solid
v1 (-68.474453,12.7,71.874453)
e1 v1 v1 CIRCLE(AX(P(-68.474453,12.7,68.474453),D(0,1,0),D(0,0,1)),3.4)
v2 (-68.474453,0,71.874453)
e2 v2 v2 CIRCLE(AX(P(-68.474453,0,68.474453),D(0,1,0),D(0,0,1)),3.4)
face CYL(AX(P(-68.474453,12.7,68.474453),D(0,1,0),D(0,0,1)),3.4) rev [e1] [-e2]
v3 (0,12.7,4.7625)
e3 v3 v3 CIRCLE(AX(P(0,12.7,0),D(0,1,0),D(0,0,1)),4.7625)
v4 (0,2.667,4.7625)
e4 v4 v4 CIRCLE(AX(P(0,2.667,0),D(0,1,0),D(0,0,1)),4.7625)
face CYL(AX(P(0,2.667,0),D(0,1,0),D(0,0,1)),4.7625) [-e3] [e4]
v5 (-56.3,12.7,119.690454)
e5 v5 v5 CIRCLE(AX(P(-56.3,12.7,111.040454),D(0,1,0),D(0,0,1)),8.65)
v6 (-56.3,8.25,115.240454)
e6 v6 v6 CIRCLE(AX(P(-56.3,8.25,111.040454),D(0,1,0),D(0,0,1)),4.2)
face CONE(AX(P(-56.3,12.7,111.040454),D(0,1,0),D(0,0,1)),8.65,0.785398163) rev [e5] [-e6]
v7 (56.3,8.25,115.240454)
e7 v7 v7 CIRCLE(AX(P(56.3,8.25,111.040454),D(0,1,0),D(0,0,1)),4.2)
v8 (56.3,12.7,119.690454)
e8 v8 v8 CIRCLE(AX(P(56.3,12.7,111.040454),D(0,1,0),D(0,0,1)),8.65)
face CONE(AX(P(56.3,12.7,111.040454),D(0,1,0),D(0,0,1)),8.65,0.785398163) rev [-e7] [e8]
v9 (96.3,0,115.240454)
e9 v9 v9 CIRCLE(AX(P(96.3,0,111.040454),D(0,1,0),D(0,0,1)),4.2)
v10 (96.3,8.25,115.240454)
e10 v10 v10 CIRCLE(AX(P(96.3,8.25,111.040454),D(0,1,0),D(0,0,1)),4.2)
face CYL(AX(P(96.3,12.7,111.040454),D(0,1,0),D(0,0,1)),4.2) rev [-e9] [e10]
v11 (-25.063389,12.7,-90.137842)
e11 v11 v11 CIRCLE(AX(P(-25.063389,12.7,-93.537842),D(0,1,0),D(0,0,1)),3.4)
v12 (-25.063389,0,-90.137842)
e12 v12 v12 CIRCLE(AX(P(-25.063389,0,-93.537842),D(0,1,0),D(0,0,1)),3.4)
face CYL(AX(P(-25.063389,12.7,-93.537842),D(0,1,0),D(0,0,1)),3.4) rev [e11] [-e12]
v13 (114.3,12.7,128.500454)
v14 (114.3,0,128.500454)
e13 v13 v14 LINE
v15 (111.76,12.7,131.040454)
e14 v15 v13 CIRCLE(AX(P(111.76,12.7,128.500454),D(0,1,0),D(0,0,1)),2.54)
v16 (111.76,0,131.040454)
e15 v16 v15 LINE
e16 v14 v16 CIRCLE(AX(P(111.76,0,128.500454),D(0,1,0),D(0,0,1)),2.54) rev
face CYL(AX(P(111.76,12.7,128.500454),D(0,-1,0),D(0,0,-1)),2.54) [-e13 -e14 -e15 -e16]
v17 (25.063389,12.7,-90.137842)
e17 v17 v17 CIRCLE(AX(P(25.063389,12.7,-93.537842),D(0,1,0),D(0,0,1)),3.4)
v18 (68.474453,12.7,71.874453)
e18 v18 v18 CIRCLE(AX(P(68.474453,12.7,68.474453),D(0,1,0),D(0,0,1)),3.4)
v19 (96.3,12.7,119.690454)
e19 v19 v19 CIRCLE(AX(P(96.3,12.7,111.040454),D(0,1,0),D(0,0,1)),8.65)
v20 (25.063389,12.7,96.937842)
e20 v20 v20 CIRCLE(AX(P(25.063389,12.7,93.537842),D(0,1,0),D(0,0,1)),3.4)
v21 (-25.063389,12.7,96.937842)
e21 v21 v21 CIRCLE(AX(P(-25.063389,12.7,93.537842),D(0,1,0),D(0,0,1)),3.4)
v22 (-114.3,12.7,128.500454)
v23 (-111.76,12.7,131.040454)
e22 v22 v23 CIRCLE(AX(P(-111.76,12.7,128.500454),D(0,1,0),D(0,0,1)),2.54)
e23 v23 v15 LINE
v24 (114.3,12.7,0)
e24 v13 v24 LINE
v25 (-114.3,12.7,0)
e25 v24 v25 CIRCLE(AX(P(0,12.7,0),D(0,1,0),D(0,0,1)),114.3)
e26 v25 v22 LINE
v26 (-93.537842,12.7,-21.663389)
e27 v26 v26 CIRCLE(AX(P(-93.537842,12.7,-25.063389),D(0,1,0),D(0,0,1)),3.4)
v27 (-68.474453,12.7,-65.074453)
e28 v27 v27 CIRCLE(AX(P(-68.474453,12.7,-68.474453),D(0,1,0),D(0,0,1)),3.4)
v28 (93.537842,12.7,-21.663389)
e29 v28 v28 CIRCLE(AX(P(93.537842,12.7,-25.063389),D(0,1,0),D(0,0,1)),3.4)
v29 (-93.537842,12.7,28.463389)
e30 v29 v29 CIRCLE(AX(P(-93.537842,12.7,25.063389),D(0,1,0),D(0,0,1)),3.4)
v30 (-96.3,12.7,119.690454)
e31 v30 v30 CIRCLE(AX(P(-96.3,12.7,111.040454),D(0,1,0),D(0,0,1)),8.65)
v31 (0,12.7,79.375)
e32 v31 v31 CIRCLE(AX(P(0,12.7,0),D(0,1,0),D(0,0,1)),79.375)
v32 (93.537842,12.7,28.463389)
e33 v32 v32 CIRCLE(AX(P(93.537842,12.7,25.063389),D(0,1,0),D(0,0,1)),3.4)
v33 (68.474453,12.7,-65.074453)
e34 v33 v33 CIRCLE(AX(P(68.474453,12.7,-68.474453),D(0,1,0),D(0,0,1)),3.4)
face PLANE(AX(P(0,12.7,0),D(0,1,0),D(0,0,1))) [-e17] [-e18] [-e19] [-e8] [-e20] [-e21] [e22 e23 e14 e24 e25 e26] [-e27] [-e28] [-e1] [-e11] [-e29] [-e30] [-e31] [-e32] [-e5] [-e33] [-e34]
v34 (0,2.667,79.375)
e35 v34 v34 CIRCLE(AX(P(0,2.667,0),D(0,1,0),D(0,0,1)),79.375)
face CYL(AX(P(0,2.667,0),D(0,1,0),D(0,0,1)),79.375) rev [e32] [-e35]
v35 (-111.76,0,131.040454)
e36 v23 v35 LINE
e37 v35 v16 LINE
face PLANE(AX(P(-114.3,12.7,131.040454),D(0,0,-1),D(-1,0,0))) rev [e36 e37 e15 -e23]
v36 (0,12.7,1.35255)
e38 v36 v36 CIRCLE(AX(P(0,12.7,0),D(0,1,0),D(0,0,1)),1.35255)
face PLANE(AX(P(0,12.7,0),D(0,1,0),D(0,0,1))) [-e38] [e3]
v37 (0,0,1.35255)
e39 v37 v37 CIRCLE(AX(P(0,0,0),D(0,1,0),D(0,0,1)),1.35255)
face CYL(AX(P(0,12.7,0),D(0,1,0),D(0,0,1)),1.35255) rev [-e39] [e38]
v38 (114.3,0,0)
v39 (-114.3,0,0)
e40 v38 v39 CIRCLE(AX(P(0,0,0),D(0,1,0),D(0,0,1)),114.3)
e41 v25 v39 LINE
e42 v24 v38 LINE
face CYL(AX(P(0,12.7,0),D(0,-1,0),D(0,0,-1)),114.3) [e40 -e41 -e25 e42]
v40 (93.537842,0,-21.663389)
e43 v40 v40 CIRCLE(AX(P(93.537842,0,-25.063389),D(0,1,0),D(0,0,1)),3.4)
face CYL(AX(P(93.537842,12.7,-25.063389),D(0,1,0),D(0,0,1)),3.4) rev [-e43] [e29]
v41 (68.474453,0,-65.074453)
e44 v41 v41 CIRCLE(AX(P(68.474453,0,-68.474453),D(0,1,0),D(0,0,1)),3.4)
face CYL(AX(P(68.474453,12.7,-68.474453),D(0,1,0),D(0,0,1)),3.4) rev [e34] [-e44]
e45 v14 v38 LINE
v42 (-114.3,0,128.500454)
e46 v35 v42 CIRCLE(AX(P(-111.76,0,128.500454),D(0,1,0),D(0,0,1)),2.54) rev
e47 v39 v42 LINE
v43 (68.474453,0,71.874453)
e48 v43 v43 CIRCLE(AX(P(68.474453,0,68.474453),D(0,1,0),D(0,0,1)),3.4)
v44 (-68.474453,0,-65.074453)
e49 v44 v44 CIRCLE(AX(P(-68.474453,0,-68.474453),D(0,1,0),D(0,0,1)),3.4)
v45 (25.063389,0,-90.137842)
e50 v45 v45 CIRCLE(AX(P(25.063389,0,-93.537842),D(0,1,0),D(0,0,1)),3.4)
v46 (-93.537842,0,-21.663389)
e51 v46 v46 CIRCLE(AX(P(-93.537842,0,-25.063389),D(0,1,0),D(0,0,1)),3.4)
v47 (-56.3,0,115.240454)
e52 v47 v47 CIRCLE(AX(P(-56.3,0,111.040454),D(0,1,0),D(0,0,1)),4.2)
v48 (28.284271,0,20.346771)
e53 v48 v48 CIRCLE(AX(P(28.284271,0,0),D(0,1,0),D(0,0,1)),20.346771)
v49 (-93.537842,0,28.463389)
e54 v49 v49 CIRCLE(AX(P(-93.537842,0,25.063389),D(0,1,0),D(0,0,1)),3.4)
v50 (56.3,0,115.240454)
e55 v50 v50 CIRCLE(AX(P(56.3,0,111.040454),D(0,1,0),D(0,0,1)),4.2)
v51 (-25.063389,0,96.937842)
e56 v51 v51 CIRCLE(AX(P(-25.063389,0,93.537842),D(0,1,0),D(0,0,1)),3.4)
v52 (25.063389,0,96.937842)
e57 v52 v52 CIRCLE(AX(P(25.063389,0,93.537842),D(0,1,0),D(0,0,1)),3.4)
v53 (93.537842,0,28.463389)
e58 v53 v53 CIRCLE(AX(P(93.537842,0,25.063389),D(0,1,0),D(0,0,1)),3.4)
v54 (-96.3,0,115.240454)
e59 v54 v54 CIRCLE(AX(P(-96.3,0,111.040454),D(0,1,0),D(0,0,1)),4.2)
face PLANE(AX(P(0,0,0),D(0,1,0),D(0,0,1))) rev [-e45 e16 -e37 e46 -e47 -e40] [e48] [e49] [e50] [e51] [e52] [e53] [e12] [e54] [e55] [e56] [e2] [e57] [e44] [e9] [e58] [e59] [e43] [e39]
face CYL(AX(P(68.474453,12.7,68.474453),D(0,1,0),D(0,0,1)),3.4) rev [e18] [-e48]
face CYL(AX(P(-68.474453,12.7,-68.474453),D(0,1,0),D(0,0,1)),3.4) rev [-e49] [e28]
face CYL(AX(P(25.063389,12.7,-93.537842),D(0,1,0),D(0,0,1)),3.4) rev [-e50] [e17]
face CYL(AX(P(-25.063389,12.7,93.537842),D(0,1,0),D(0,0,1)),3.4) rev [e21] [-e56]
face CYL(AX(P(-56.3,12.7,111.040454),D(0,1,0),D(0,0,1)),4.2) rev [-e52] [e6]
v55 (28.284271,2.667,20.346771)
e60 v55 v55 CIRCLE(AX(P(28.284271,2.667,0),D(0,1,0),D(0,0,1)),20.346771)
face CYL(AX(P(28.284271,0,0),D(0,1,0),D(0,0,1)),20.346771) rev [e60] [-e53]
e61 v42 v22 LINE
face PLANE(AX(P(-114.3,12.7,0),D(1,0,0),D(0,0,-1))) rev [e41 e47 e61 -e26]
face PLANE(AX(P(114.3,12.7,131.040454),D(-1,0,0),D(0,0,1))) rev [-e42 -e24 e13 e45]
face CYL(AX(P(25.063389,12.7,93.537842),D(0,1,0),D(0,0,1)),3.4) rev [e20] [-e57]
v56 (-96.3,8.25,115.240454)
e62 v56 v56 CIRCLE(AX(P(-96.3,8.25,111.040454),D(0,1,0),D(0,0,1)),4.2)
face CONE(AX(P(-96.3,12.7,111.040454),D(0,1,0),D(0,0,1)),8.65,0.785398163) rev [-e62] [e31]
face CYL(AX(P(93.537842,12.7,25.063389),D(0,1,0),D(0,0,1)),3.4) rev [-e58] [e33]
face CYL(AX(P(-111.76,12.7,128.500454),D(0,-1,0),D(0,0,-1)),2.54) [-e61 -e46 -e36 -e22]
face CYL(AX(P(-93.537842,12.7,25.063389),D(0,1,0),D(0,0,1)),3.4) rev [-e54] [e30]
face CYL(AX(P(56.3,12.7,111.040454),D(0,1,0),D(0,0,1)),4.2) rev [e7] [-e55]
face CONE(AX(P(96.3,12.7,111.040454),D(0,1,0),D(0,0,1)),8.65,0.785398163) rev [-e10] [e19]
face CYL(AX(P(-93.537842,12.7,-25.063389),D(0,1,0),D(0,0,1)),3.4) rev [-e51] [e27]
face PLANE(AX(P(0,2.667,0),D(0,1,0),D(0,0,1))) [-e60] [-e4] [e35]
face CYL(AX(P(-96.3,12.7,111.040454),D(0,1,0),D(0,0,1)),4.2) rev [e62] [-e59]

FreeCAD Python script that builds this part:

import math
import FreeCAD as App
import Part
import Sketcher
from FreeCAD import Vector
Q = App.Units.Quantity


def edges_at(feature, points):
    """Names of the edges that pass closest to the given points."""
    edges = feature.Shape.Edges
    near = lambda p: min(range(len(edges)), key=lambda i: edges[i].distToShape(Part.Vertex(*p))[0])
    return sorted({f"Edge{near(p) + 1}" for p in points})

doc = App.newDocument("Part")
body = doc.addObject("PartDesign::Body", "Body")

# Sketch on XZ plane
sketch1 = body.newObject("Sketcher::SketchObject", "Sketch")
sketch1.AttachmentSupport = (doc.getObject("XZ_Plane"), [""])
sketch1.MapMode = "FlatFace"
sketch1.addGeometry([
    Part.LineSegment(Vector(-114.3, 0, 0), Vector(-114.3, 131.040454, 0)),  # 0
    Part.LineSegment(Vector(-114.3, 131.040454, 0), Vector(114.3, 131.040454, 0)),  # 1
    Part.LineSegment(Vector(114.3, 131.040454, 0), Vector(114.3, 0, 0)),  # 2
    Part.ArcOfCircle(Part.Circle(Vector(0, 0, 0), Vector(0, 0, 1), 114.3), math.radians(180), math.radians(360)),  # 3
    Part.Circle(Vector(-96.3, 111.040454, 0), Vector(0, 0, 1), 1.27),  # 4
    Part.Circle(Vector(-56.3, 111.040454, 0), Vector(0, 0, 1), 1.27),  # 5
    Part.Circle(Vector(-68.474453, 68.474453, 0), Vector(0, 0, 1), 1.27),  # 6
    Part.Circle(Vector(-25.063389, 93.537842, 0), Vector(0, 0, 1), 1.27),  # 7
    Part.Circle(Vector(-93.537842, 25.063389, 0), Vector(0, 0, 1), 1.27),  # 8
    Part.Circle(Vector(25.063389, 93.537842, 0), Vector(0, 0, 1), 1.27),  # 9
    Part.Circle(Vector(56.3, 111.040454, 0), Vector(0, 0, 1), 1.27),  # 10
    Part.Circle(Vector(96.3, 111.040454, 0), Vector(0, 0, 1), 1.27),  # 11
    Part.Circle(Vector(68.474453, 68.474453, 0), Vector(0, 0, 1), 1.27),  # 12
    Part.Circle(Vector(93.537842, 25.063389, 0), Vector(0, 0, 1), 1.27),  # 13
    Part.Circle(Vector(-93.537842, -25.063389, 0), Vector(0, 0, 1), 1.27),  # 14
    Part.Circle(Vector(-68.474453, -68.474453, 0), Vector(0, 0, 1), 1.27),  # 15
    Part.Circle(Vector(-25.063389, -93.537842, 0), Vector(0, 0, 1), 1.27),  # 16
    Part.Circle(Vector(93.537842, -25.063389, 0), Vector(0, 0, 1), 1.27),  # 17
    Part.Circle(Vector(25.063389, -93.537842, 0), Vector(0, 0, 1), 1.27),  # 18
    Part.Circle(Vector(68.474453, -68.474453, 0), Vector(0, 0, 1), 1.27),  # 19
], False)
sketch1.addConstraint([
    Sketcher.Constraint("Coincident", 0, 2, 1, 1),
    Sketcher.Constraint("Coincident", 1, 2, 2, 1),
    Sketcher.Constraint("Tangent", 2, 2, 3, 2),
    Sketcher.Constraint("Tangent", 3, 1, 0, 1),
    Sketcher.Constraint("Vertical", 0),
    Sketcher.Constraint("Horizontal", 1),
    Sketcher.Constraint("Vertical", 2),
    Sketcher.Constraint("Coincident", 3, 3, -1, 1),
    Sketcher.Constraint("Equal", 4, 5),
    Sketcher.Constraint("Equal", 5, 6),
    Sketcher.Constraint("Equal", 6, 7),
    Sketcher.Constraint("Equal", 7, 8),
    Sketcher.Constraint("Equal", 8, 9),
    Sketcher.Constraint("Equal", 9, 10),
    Sketcher.Constraint("Equal", 10, 11),
    Sketcher.Constraint("Equal", 11, 12),
    Sketcher.Constraint("Equal", 12, 13),
    Sketcher.Constraint("Equal", 13, 14),
    Sketcher.Constraint("Equal", 14, 15),
    Sketcher.Constraint("Equal", 15, 16),
    Sketcher.Constraint("Equal", 16, 17),
    Sketcher.Constraint("Equal", 17, 18),
    Sketcher.Constraint("Equal", 18, 19),
    Sketcher.Constraint("Symmetric", 13, 3, 14, 3, -1, 1),
    Sketcher.Constraint("Symmetric", 12, 3, 15, 3, -1, 1),
    Sketcher.Constraint("Symmetric", 9, 3, 16, 3, -1, 1),
    Sketcher.Constraint("Symmetric", 8, 3, 17, 3, -1, 1),
    Sketcher.Constraint("Symmetric", 7, 3, 18, 3, -1, 1),
    Sketcher.Constraint("Symmetric", 6, 3, 19, 3, -1, 1),
    Sketcher.Constraint("Symmetric", 7, 3, 9, 3, -2),
    Sketcher.Constraint("Symmetric", 5, 3, 10, 3, -2),
    Sketcher.Constraint("Symmetric", 4, 3, 11, 3, -2),
    Sketcher.Constraint("Symmetric", 6, 3, 12, 3, -2),
    Sketcher.Constraint("Symmetric", 8, 3, 13, 3, -2),
    Sketcher.Constraint("Horizontal", 4, 3, 5, 3),
    Sketcher.Constraint("Diameter", 4, Q("0.1 in")),
    Sketcher.Constraint("Radius", 3, Q("4.5 in")),
    Sketcher.Constraint("DistanceX", 4, 3, -1, 1, Q("96.3 mm")),
    Sketcher.Constraint("DistanceX", 5, 3, -1, 1, Q("56.3 mm")),
    Sketcher.Constraint("DistanceY", 6, 3, 5, 3, Q("42.566001 mm")),
    Sketcher.Constraint("DistanceY", 4, 3, 0, 2, Q("20 mm")),
    Sketcher.Constraint("DistanceY", 0, 1, 0, 2, Q("131.040454 mm")),
    Sketcher.Constraint("DistanceX", 7, 3, -1, 1, Q("25.063389 mm")),
    Sketcher.Constraint("DistanceY", -1, 1, 8, 3, Q("25.063389 mm")),
    Sketcher.Constraint("DistanceY", 7, 3, 5, 3, Q("17.502611 mm")),
    Sketcher.Constraint("DistanceX", 8, 3, 6, 3, Q("25.063389 mm")),
    Sketcher.Constraint("DistanceX", 16, 3, 13, 3, Q("118.601231 mm")),
])
pad1 = body.newObject("PartDesign::Pad", "Pad")
pad1.Profile = sketch1
pad1.Length = Q("0.5 in")
pad1.Reversed = True

# Sketch on XZ plane
sketch2 = body.newObject("Sketcher::SketchObject", "Sketch001")
sketch2.AttachmentSupport = (doc.getObject("XZ_Plane"), [""])
sketch2.MapMode = "FlatFace"
sketch2.AttachmentOffset = App.Placement(Vector(0, 0, -0.5 * 25.4), App.Rotation())
sketch2.addGeometry([
    Part.Circle(Vector(0, 0, 0), Vector(0, 0, 1), 79.375),
    Part.Circle(Vector(0, 0, 0), Vector(0, 0, 1), 4.7625),
], False)
sketch2.addConstraint([
    Sketcher.Constraint("Coincident", 0, 3, -1, 1),
    Sketcher.Constraint("Coincident", 1, 3, -1, 1),
    Sketcher.Constraint("Diameter", 0, Q("6.25 in")),
    Sketcher.Constraint("Diameter", 1, Q("0.375 in")),
])
pocket1 = body.newObject("PartDesign::Pocket", "Pocket")
pocket1.Profile = sketch2
pocket1.Length = Q("0.395 in")
pocket1.Reversed = True

# Sketch on XZ plane
sketch3 = body.newObject("Sketcher::SketchObject", "Sketch002")
sketch3.AttachmentSupport = (doc.getObject("XZ_Plane"), [""])
sketch3.MapMode = "FlatFace"
sketch3.AttachmentOffset = App.Placement(Vector(0, 0, -0.5 * 25.4), App.Rotation())
sketch3.addGeometry(Part.Circle(Vector(0, 0, 0), Vector(0, 0, 1), 0.127), False)
sketch3.addConstraint([
    Sketcher.Constraint("Coincident", 0, 3, -1, 1),
    Sketcher.Constraint("Diameter", 0, Q("0.01 in")),
])
pocket2 = body.newObject("PartDesign::Pocket", "Pocket001")
pocket2.Profile = sketch3
pocket2.Type = "ThroughAll"
pocket2.Reversed = True

# Sketch on XZ plane
sketch4 = body.newObject("Sketcher::SketchObject", "Sketch003")
sketch4.AttachmentSupport = (doc.getObject("XZ_Plane"), [""])
sketch4.MapMode = "FlatFace"
sketch4.AttachmentOffset = App.Placement(Vector(0, 0, -0.5 * 25.4), App.Rotation())
sketch4.addGeometry([
    Part.Circle(Vector(-93.537842, -25.063389, 0), Vector(0, 0, 1), 3.4),  # 0
    Part.Circle(Vector(-93.537842, 25.063389, 0), Vector(0, 0, 1), 3.4),  # 1
    Part.Circle(Vector(-25.063389, -93.537842, 0), Vector(0, 0, 1), 3.4),  # 2
    Part.Circle(Vector(-68.474453, -68.474453, 0), Vector(0, 0, 1), 3.4),  # 3
    Part.Circle(Vector(25.063389, -93.537842, 0), Vector(0, 0, 1), 3.4),  # 4
    Part.Circle(Vector(68.474453, -68.474453, 0), Vector(0, 0, 1), 3.4),  # 5
    Part.Circle(Vector(93.537842, -25.063389, 0), Vector(0, 0, 1), 3.4),  # 6
    Part.Circle(Vector(93.537842, 25.063389, 0), Vector(0, 0, 1), 3.4),  # 7
    Part.Circle(Vector(68.474453, 68.474453, 0), Vector(0, 0, 1), 3.4),  # 8
    Part.Circle(Vector(25.063389, 93.537842, 0), Vector(0, 0, 1), 3.4),  # 9
    Part.Circle(Vector(-25.063389, 93.537842, 0), Vector(0, 0, 1), 3.4),  # 10
    Part.Circle(Vector(-68.474453, 68.474453, 0), Vector(0, 0, 1), 3.4),  # 11
], False)
sketch4.addConstraint([
    Sketcher.Constraint("Equal", 0, 1),
    Sketcher.Constraint("Equal", 1, 2),
    Sketcher.Constraint("Equal", 2, 3),
    Sketcher.Constraint("Equal", 3, 4),
    Sketcher.Constraint("Equal", 4, 5),
    Sketcher.Constraint("Equal", 5, 6),
    Sketcher.Constraint("Equal", 6, 7),
    Sketcher.Constraint("Equal", 7, 8),
    Sketcher.Constraint("Equal", 8, 9),
    Sketcher.Constraint("Equal", 9, 10),
    Sketcher.Constraint("Equal", 10, 11),
    Sketcher.Constraint("Symmetric", 1, 3, 6, 3, -1, 1),
    Sketcher.Constraint("Symmetric", 0, 3, 7, 3, -1, 1),
    Sketcher.Constraint("Symmetric", 3, 3, 8, 3, -1, 1),
    Sketcher.Constraint("Symmetric", 2, 3, 9, 3, -1, 1),
    Sketcher.Constraint("Symmetric", 4, 3, 10, 3, -1, 1),
    Sketcher.Constraint("Symmetric", 5, 3, 11, 3, -1, 1),
    Sketcher.Constraint("Symmetric", 2, 3, 4, 3, -2),
    Sketcher.Constraint("Symmetric", 3, 3, 5, 3, -2),
    Sketcher.Constraint("Symmetric", 0, 3, 6, 3, -2),
    Sketcher.Constraint("Diameter", 0, Q("6.8 mm")),
    Sketcher.Constraint("DistanceY", 0, 3, -1, 1, Q("25.063389 mm")),
    Sketcher.Constraint("DistanceX", 2, 3, -1, 1, Q("25.063389 mm")),
    Sketcher.Constraint("DistanceY", 2, 3, 1, 3, Q("118.601231 mm")),
    Sketcher.Constraint("DistanceX", 0, 3, 3, 3, Q("25.063389 mm")),
    Sketcher.Constraint("DistanceY", 2, 3, 3, 3, Q("25.063389 mm")),
    Sketcher.Constraint("DistanceX", 0, 3, 4, 3, Q("118.601231 mm")),
])
doc.recompute()
hole = body.newObject("PartDesign::Hole", "Hole")
hole.Profile = sketch4
hole.ThreadType = "None"
hole.Diameter = 6.8
hole.DepthType = "ThroughAll"
hole.Reversed = True
doc.recompute()

fillet = body.newObject("PartDesign::Fillet", "Fillet")
fillet.Base = (hole, edges_at(hole, [(114.3, 6.35, 131.04), (-114.3, 6.35, 131.04)]))
fillet.Radius = Q("0.1 in")

# Sketch on XZ plane
sketch5 = body.newObject("Sketcher::SketchObject", "Sketch004")
sketch5.AttachmentSupport = (doc.getObject("XZ_Plane"), [""])
sketch5.MapMode = "FlatFace"
sketch5.AttachmentOffset = App.Placement(Vector(0, 0, -0.5 * 25.4), App.Rotation())
sketch5.addGeometry([
    Part.Circle(Vector(-96.3, 111.040454, 0), Vector(0, 0, 1), 4.2),
    Part.Circle(Vector(-56.3, 111.040454, 0), Vector(0, 0, 1), 4.2),
    Part.Circle(Vector(56.3, 111.040454, 0), Vector(0, 0, 1), 4.2),
    Part.Circle(Vector(96.3, 111.040454, 0), Vector(0, 0, 1), 4.2),
], False)
sketch5.addConstraint([
    Sketcher.Constraint("Equal", 0, 1),
    Sketcher.Constraint("Equal", 1, 2),
    Sketcher.Constraint("Equal", 2, 3),
    Sketcher.Constraint("Symmetric", 1, 3, 2, 3, -2),
    Sketcher.Constraint("Symmetric", 0, 3, 3, 3, -2),
    Sketcher.Constraint("Horizontal", 0, 3, 1, 3),
    Sketcher.Constraint("Diameter", 0, Q("8.4 mm")),
    Sketcher.Constraint("DistanceX", 0, 3, -1, 1, Q("96.3 mm")),
    Sketcher.Constraint("DistanceX", 1, 3, -1, 1, Q("56.3 mm")),
    Sketcher.Constraint("DistanceY", -1, 1, 0, 3, Q("111.040454 mm")),
])
doc.recompute()
hole2 = body.newObject("PartDesign::Hole", "Hole001")
hole2.Profile = sketch5
hole2.ThreadType = "None"
hole2.Diameter = 8.4
hole2.DepthType = "ThroughAll"
hole2.HoleCutType = "Countersink"
hole2.HoleCutDiameter = 17.3
hole2.HoleCutCountersinkAngle = 90
hole2.Reversed = True

# Sketch on XZ plane
sketch6 = body.newObject("Sketcher::SketchObject", "Sketch005")
sketch6.AttachmentSupport = (doc.getObject("XZ_Plane"), [""])
sketch6.MapMode = "FlatFace"
sketch6.AttachmentOffset = App.Placement(Vector(0, 0, -0.105 * 25.4), App.Rotation())
sketch6.addGeometry(Part.Circle(Vector(28.284271, 0, 0), Vector(0, 0, 1), 20.346771), False)
sketch6.addConstraint([
    Sketcher.Constraint("PointOnObject", 0, 3, -1),
    Sketcher.Constraint("Diameter", 0, Q("40.693543 mm")),
    Sketcher.Constraint("DistanceX", -1, 1, 0, 3, Q("28.284271 mm")),
])
pocket3 = body.newObject("PartDesign::Pocket", "Pocket002")
pocket3.Profile = sketch6
pocket3.Type = "ThroughAll"
pocket3.Reversed = True

# Sketch on XZ plane
sketch7 = body.newObject("Sketcher::SketchObject", "Sketch006")
sketch7.AttachmentSupport = (doc.getObject("XZ_Plane"), [""])
sketch7.MapMode = "FlatFace"
sketch7.AttachmentOffset = App.Placement(Vector(0, 0, -0.5 * 25.4), App.Rotation())
sketch7.addGeometry(Part.Circle(Vector(0, 0, 0), Vector(0, 0, 1), 1.35255), False)
sketch7.addConstraint([
    Sketcher.Constraint("Coincident", 0, 3, -1, 1),
    Sketcher.Constraint("Diameter", 0, Q("0.1065 in")),
])
doc.recompute()
hole3 = body.newObject("PartDesign::Hole", "Hole002")
hole3.Profile = sketch7
hole3.ThreadType = "None"
hole3.Diameter = Q("0.1065 in")
hole3.DepthType = "ThroughAll"
hole3.Reversed = True

doc.recompute()
